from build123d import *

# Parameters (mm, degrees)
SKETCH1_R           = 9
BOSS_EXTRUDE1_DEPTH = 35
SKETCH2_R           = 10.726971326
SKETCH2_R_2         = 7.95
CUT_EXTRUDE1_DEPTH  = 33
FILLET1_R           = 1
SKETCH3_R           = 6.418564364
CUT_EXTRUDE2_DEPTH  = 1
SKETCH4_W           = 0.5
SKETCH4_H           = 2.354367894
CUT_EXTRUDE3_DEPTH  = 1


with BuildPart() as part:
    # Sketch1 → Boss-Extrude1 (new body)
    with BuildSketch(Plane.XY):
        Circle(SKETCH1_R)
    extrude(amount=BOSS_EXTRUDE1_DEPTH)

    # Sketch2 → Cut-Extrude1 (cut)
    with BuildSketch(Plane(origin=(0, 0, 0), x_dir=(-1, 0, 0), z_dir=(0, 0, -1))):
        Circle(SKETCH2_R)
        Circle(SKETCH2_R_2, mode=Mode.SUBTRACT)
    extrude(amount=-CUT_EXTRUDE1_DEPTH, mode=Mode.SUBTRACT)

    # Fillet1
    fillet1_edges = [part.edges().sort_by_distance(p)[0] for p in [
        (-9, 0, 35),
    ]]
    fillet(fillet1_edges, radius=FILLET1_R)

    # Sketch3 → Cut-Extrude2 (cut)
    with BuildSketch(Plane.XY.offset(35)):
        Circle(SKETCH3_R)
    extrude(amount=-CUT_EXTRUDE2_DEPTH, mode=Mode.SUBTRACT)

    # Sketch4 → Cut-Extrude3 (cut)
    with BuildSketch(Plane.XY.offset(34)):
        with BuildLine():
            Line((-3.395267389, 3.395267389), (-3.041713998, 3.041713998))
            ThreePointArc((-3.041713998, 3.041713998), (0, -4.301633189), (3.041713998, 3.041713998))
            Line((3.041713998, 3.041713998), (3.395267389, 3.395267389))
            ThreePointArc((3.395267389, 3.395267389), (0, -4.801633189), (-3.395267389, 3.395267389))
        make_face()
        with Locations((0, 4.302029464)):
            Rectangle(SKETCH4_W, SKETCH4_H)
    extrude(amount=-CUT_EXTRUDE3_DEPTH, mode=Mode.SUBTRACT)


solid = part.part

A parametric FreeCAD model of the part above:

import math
import FreeCAD as App
import Part
import Sketcher


def edges_at(feature, points):
    """Names of the edges that pass closest to the given points."""
    edges = feature.Shape.Edges
    near = lambda p: min(range(len(edges)), key=lambda i: edges[i].distToShape(Part.Vertex(*p))[0])
    return sorted({f"Edge{near(p) + 1}" for p in points})

doc = App.newDocument("Part")
body = doc.addObject("PartDesign::Body", "Body")

sketch1 = body.newObject("Sketcher::SketchObject", "Sketch")
sketch1.AttachmentSupport = (doc.getObject("XY_Plane"), [""])
sketch1.MapMode = "FlatFace"
sketch1.addGeometry(Part.Circle(App.Vector(0, 0, 0), App.Vector(0, 0, 1), 9), False)
sketch1.addConstraint(Sketcher.Constraint("Coincident", 0, 3, -1, 1))
sketch1.addConstraint(Sketcher.Constraint("Diameter", 0, 18.0))
pad1 = body.newObject("PartDesign::Pad", "Pad")
pad1.Profile = sketch1
pad1.Length = 35

sketch2 = body.newObject("Sketcher::SketchObject", "Sketch001")
sketch2.AttachmentSupport = (doc.getObject("XY_Plane"), [""])
sketch2.MapMode = "FlatFace"
sketch2.addGeometry(Part.Circle(App.Vector(0, 0, 0), App.Vector(0, 0, 1), 10.726971), False)
sketch2.addGeometry(Part.Circle(App.Vector(0, 0, 0), App.Vector(0, 0, 1), 7.95), False)
sketch2.addConstraint(Sketcher.Constraint("Coincident", 0, 3, -1, 1))
sketch2.addConstraint(Sketcher.Constraint("Coincident", 1, 3, -1, 1))
sketch2.addConstraint(Sketcher.Constraint("Diameter", 1, 15.9))
sketch2.addConstraint(Sketcher.Constraint("Diameter", 0, 21.453943))
pocket1 = body.newObject("PartDesign::Pocket", "Pocket")
pocket1.Profile = sketch2
pocket1.Length = 33
pocket1.Reversed = True
doc.recompute()

fillet = body.newObject("PartDesign::Fillet", "Fillet")
fillet.Base = (pocket1, edges_at(pocket1, [(-9, 0, 35)]))
fillet.Radius = 1

sketch3 = body.newObject("Sketcher::SketchObject", "Sketch002")
sketch3.AttachmentSupport = (doc.getObject("XY_Plane"), [""])
sketch3.MapMode = "FlatFace"
sketch3.AttachmentOffset = App.Placement(App.Vector(0, 0, 35), App.Rotation())
sketch3.addGeometry(Part.Circle(App.Vector(0, 0, 0), App.Vector(0, 0, 1), 6.418564), False)
sketch3.addConstraint(Sketcher.Constraint("Coincident", 0, 3, -1, 1))
sketch3.addConstraint(Sketcher.Constraint("Diameter", 0, 12.837129))
pocket2 = body.newObject("PartDesign::Pocket", "Pocket001")
pocket2.Profile = sketch3
pocket2.Length = 1

sketch4 = body.newObject("Sketcher::SketchObject", "Sketch003")
sketch4.AttachmentSupport = (doc.getObject("XY_Plane"), [""])
sketch4.MapMode = "FlatFace"
sketch4.AttachmentOffset = App.Placement(App.Vector(0, 0, 34), App.Rotation())
sketch4.addGeometry(Part.LineSegment(App.Vector(-3.041714, 3.041714, 0), App.Vector(-3.395267, 3.395267, 0)), False)
sketch4.addGeometry(Part.ArcOfCircle(Part.Circle(App.Vector(0, 0, 0), App.Vector(0, 0, 1), 4.801633), math.radians(135), math.radians(405)), False)
sketch4.addGeometry(Part.LineSegment(App.Vector(3.395267, 3.395267, 0), App.Vector(3.041714, 3.041714, 0)), False)
sketch4.addGeometry(Part.ArcOfCircle(Part.Circle(App.Vector(0, 0, 0), App.Vector(0, 0, 1), 4.301633), math.radians(135), math.radians(405)), False)
sketch4.addGeometry(Part.LineSegment(App.Vector(-0.25, 5.479213, 0), App.Vector(-0.25, 3.124846, 0)), False)
sketch4.addGeometry(Part.LineSegment(App.Vector(-0.25, 3.124846, 0), App.Vector(0.25, 3.124846, 0)), False)
sketch4.addGeometry(Part.LineSegment(App.Vector(0.25, 3.124846, 0), App.Vector(0.25, 5.479213, 0)), False)
sketch4.addGeometry(Part.LineSegment(App.Vector(0.25, 5.479213, 0), App.Vector(-0.25, 5.479213, 0)), False)
sketch4.addConstraint(Sketcher.Constraint("Coincident", 0, 2, 1, 1))
sketch4.addConstraint(Sketcher.Constraint("Coincident", 1, 2, 2, 1))
sketch4.addConstraint(Sketcher.Constraint("Coincident", 2, 2, 3, 2))
sketch4.addConstraint(Sketcher.Constraint("Coincident", 3, 1, 0, 1))
sketch4.addConstraint(Sketcher.Constraint("Coincident", 4, 2, 5, 1))
sketch4.addConstraint(Sketcher.Constraint("Coincident", 5, 2, 6, 1))
sketch4.addConstraint(Sketcher.Constraint("Coincident", 6, 2, 7, 1))
sketch4.addConstraint(Sketcher.Constraint("Coincident", 7, 2, 4, 1))
sketch4.addConstraint(Sketcher.Constraint("Vertical", 4))
sketch4.addConstraint(Sketcher.Constraint("Horizontal", 5))
sketch4.addConstraint(Sketcher.Constraint("Vertical", 6))
sketch4.addConstraint(Sketcher.Constraint("Horizontal", 7))
sketch4.addConstraint(Sketcher.Constraint("Coincident", 1, 3, -1, 1))
sketch4.addConstraint(Sketcher.Constraint("Coincident", 3, 3, -1, 1))
sketch4.addConstraint(Sketcher.Constraint("Perpendicular", 0, 2))
sketch4.addConstraint(Sketcher.Constraint("Horizontal", 0, 2, 1, 2))
sketch4.addConstraint(Sketcher.Constraint("Horizontal", 2, 2, 3, 1))
sketch4.addConstraint(Sketcher.Constraint("DistanceX", 5, 1, 5, 2, 0.5))
sketch4.addConstraint(Sketcher.Constraint("Distance", 0, 0.5))
sketch4.addConstraint(Sketcher.Constraint("DistanceX", 4, 2, -1, 1, 0.25))
sketch4.addConstraint(Sketcher.Constraint("Radius", 1, 4.801633))
sketch4.addConstraint(Sketcher.Constraint("DistanceY", 2, 2, 6, 2, 2.437499))
sketch4.addConstraint(Sketcher.Constraint("DistanceY", 4, 2, 4, 1, 2.354368))
sketch4.addConstraint(Sketcher.Constraint("DistanceX", 0, 2, 2, 2, 6.436981))
pocket3 = body.newObject("PartDesign::Pocket", "Pocket002")
pocket3.Profile = sketch4
pocket3.Length = 1

doc.recompute()
